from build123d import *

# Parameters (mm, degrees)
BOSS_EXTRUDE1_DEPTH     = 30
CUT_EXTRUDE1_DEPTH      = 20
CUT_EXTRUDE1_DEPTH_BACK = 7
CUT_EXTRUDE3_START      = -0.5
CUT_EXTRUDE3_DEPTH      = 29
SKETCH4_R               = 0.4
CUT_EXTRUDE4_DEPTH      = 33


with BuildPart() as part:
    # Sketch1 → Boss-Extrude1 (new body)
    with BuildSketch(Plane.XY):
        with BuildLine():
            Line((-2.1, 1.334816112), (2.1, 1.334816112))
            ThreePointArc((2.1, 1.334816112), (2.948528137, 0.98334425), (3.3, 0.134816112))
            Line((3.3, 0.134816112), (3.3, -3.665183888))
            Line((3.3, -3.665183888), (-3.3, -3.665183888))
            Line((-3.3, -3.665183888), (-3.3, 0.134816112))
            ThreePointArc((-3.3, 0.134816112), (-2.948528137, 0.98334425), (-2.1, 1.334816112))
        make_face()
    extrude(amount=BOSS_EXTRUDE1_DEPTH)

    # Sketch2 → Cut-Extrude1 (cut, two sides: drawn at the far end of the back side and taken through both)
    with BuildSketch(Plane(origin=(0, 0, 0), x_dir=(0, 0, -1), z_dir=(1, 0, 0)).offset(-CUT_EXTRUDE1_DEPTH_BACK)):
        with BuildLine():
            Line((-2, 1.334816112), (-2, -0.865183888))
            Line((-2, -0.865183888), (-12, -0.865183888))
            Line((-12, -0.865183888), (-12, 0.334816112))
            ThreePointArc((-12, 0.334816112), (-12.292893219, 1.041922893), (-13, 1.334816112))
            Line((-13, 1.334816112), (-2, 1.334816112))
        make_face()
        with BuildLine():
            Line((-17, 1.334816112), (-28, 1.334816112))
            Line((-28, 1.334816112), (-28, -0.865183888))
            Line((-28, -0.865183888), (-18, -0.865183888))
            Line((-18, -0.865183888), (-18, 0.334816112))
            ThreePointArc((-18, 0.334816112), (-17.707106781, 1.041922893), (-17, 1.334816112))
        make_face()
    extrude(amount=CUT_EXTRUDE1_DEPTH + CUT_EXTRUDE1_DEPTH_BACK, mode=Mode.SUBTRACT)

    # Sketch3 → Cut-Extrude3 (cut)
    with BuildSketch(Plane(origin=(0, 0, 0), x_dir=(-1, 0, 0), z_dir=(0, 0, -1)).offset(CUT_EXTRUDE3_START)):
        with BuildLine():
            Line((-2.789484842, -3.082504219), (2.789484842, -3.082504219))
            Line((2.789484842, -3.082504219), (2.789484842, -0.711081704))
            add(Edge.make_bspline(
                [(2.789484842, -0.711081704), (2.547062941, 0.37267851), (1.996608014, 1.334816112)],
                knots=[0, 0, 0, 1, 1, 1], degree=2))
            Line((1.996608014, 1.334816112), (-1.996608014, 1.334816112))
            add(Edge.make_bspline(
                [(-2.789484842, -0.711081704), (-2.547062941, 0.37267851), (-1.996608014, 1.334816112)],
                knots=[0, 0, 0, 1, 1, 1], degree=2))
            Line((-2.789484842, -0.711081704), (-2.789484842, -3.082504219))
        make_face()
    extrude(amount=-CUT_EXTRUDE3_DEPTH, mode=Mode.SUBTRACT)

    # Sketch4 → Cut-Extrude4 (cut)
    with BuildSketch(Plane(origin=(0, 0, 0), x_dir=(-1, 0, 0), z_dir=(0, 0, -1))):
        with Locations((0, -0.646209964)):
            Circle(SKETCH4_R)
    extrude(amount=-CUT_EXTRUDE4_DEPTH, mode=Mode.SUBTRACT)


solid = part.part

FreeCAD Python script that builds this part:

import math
import FreeCAD as App
import Part
import Sketcher
Q = App.Units.Quantity

doc = App.newDocument("Part")
params = doc.addObject("Spreadsheet::Sheet", "Params")
for row, (alias, value) in enumerate([
    ("sketch1_radius", "1.2 mm"),
    ("sketch1_width", "4.2 mm"),
    ("sketch1_height", "3.8 mm"),
    ("pad1_length", "30 mm"),
    ("sketch2_radius", "1 mm"),
    ("sketch2_height", "11 mm"),
    ("sketch2_width", "2.2 mm"),
    ("pocket2_length", "29 mm"),
    ("sketch4_diameter", "0.8 mm"),
    ("pocket3_length", "33 mm"),
], start=1):
    params.set(f"A{row}", alias)
    params.set(f"B{row}", "=" + value)
    params.setAlias(f"B{row}", alias)

body = doc.addObject("PartDesign::Body", "Body")

# Sketch on XY plane
sketch1 = doc.addObject("Sketcher::SketchObject", "Sketch")
body.addObject(sketch1)
sketch1.AttachmentSupport = (doc.XY_Plane, [""])
sketch1.MapMode = "FlatFace"
sketch1.addGeometry([
    Part.LineSegment(App.Vector(2.1, 1.334816, 0), App.Vector(-2.1, 1.334816, 0)),  # 0
    Part.ArcOfCircle(Part.Circle(App.Vector(-2.1, 0.134816, 0), App.Vector(0, 0, 1), 1.2), math.radians(90), math.radians(180)),  # 1
    Part.LineSegment(App.Vector(-3.3, 0.134816, 0), App.Vector(-3.3, -3.665184, 0)),  # 2
    Part.LineSegment(App.Vector(-3.3, -3.665184, 0), App.Vector(3.3, -3.665184, 0)),  # 3
    Part.LineSegment(App.Vector(3.3, -3.665184, 0), App.Vector(3.3, 0.134816, 0)),  # 4
    Part.ArcOfCircle(Part.Circle(App.Vector(2.1, 0.134816, 0), App.Vector(0, 0, 1), 1.2), math.radians(0), math.radians(90)),  # 5
], False)
sketch1.addConstraint([
    Sketcher.Constraint("Tangent", 0, 2, 1, 1),
    Sketcher.Constraint("Tangent", 1, 2, 2, 1),
    Sketcher.Constraint("Coincident", 2, 2, 3, 1),
    Sketcher.Constraint("Coincident", 3, 2, 4, 1),
    Sketcher.Constraint("Tangent", 4, 2, 5, 1),
    Sketcher.Constraint("Tangent", 5, 2, 0, 1),
    Sketcher.Constraint("Horizontal", 0),
    Sketcher.Constraint("Vertical", 2),
    Sketcher.Constraint("Horizontal", 3),
    Sketcher.Constraint("Vertical", 4),
    Sketcher.Constraint("Equal", 1, 5),
    Sketcher.Constraint("Radius", 1, Q("1.2 mm")),
    Sketcher.Constraint("DistanceX", 0, 2, 0, 1, Q("4.2 mm")),
    Sketcher.Constraint("DistanceY", 2, 2, 2, 1, Q("3.8 mm")),
    Sketcher.Constraint("DistanceX", 1, 3, -1, 1, Q("2.1 mm")),
    Sketcher.Constraint("DistanceY", -1, 1, 1, 3, Q("0.134816 mm")),
])
sketch1.setExpression("Constraints[11]", "Params.sketch1_radius")
sketch1.setExpression("Constraints[12]", "Params.sketch1_width")
sketch1.setExpression("Constraints[13]", "Params.sketch1_height")
pad1 = doc.addObject("PartDesign::Pad", "Pad")
body.addObject(pad1)
pad1.Profile = sketch1
pad1.setExpression("Length", "Params.pad1_length")

# Sketch on YZ plane
sketch2 = doc.addObject("Sketcher::SketchObject", "Sketch001")
body.addObject(sketch2)
sketch2.AttachmentSupport = (doc.YZ_Plane, [""])
sketch2.MapMode = "FlatFace"
sketch2.addGeometry([
    Part.LineSegment(App.Vector(-0.865184, 2, 0), App.Vector(1.334816, 2, 0)),  # 0
    Part.LineSegment(App.Vector(1.334816, 2, 0), App.Vector(1.334816, 13, 0)),  # 1
    Part.ArcOfCircle(Part.Circle(App.Vector(0.334816, 13, 0), App.Vector(0, 0, 1), 1), math.radians(-90), math.radians(0)),  # 2
    Part.LineSegment(App.Vector(0.334816, 12, 0), App.Vector(-0.865184, 12, 0)),  # 3
    Part.LineSegment(App.Vector(-0.865184, 12, 0), App.Vector(-0.865184, 2, 0)),  # 4
    Part.LineSegment(App.Vector(1.334816, 17, 0), App.Vector(1.334816, 28, 0)),  # 5
    Part.LineSegment(App.Vector(1.334816, 28, 0), App.Vector(-0.865184, 28, 0)),  # 6
    Part.LineSegment(App.Vector(-0.865184, 28, 0), App.Vector(-0.865184, 18, 0)),  # 7
    Part.LineSegment(App.Vector(-0.865184, 18, 0), App.Vector(0.334816, 18, 0)),  # 8
    Part.ArcOfCircle(Part.Circle(App.Vector(0.334816, 17, 0), App.Vector(0, 0, 1), 1), math.radians(0), math.radians(90)),  # 9
], False)
sketch2.addConstraint([
    Sketcher.Constraint("Coincident", 0, 2, 1, 1),
    Sketcher.Constraint("Tangent", 1, 2, 2, 2),
    Sketcher.Constraint("Tangent", 2, 1, 3, 1),
    Sketcher.Constraint("Coincident", 3, 2, 4, 1),
    Sketcher.Constraint("Coincident", 4, 2, 0, 1),
    Sketcher.Constraint("Coincident", 5, 2, 6, 1),
    Sketcher.Constraint("Coincident", 6, 2, 7, 1),
    Sketcher.Constraint("Coincident", 7, 2, 8, 1),
    Sketcher.Constraint("Tangent", 8, 2, 9, 2),
    Sketcher.Constraint("Tangent", 9, 1, 5, 1),
    Sketcher.Constraint("Horizontal", 0),
    Sketcher.Constraint("Vertical", 1),
    Sketcher.Constraint("Horizontal", 3),
    Sketcher.Constraint("Vertical", 4),
    Sketcher.Constraint("Vertical", 5),
    Sketcher.Constraint("Horizontal", 6),
    Sketcher.Constraint("Vertical", 7),
    Sketcher.Constraint("Horizontal", 8),
    Sketcher.Constraint("Equal", 2, 9),
    Sketcher.Constraint("Vertical", 2, 3, 9, 3),
    Sketcher.Constraint("Vertical", 4, 2, 6, 2),
    Sketcher.Constraint("Equal", 1, 5),
    Sketcher.Constraint("Radius", 2, Q("1 mm")),
    Sketcher.Constraint("DistanceY", 1, 1, 1, 2, Q("11 mm")),
    Sketcher.Constraint("DistanceX", 0, 1, 0, 2, Q("2.2 mm")),
    Sketcher.Constraint("DistanceY", -1, 1, 2, 3, Q("13 mm")),
    Sketcher.Constraint("DistanceY", -1, 1, 9, 3, Q("17 mm")),
    Sketcher.Constraint("DistanceX", -1, 1, 2, 3, Q("0.334816 mm")),
])
sketch2.setExpression("Constraints[22]", "Params.sketch2_radius")
sketch2.setExpression("Constraints[23]", "Params.sketch2_height")
sketch2.setExpression("Constraints[24]", "Params.sketch2_width")
pocket1 = doc.addObject("PartDesign::Pocket", "Pocket")
body.addObject(pocket1)
pocket1.Profile = sketch2
pocket1.Type = "ThroughAll"
pocket1.Midplane = True

# Sketch on XY plane
sketch3 = doc.addObject("Sketcher::SketchObject", "Sketch002")
body.addObject(sketch3)
sketch3.AttachmentSupport = (doc.XY_Plane, [""])
sketch3.MapMode = "FlatFace"
sketch3.AttachmentOffset = App.Placement(App.Vector(0, 0, 0.5), App.Rotation())
sketch3.addGeometry([
    Part.LineSegment(App.Vector(2.789485, -3.082504, 0), App.Vector(-2.789485, -3.082504, 0)),  # 0
    Part.LineSegment(App.Vector(-2.789485, -3.082504, 0), App.Vector(-2.789485, -0.711082, 0)),  # 1
    Part.BSplineCurve([App.Vector(-2.789485, -0.711082, 0), App.Vector(-2.547063, 0.372679, 0), App.Vector(-1.996608, 1.334816, 0)], [3, 3], [0, 1], False, 2, [1, 1, 1], False),  # 2
    Part.LineSegment(App.Vector(-1.996608, 1.334816, 0), App.Vector(1.996608, 1.334816, 0)),  # 3
    Part.BSplineCurve([App.Vector(2.789485, -0.711082, 0), App.Vector(2.547063, 0.372679, 0), App.Vector(1.996608, 1.334816, 0)], [3, 3], [0, 1], False, 2, [1, 1, 1], False),  # 4
    Part.LineSegment(App.Vector(2.789485, -0.711082, 0), App.Vector(2.789485, -3.082504, 0)),  # 5
], False)
sketch3.addConstraint([
    Sketcher.Constraint("Block", 2),
    Sketcher.Constraint("Block", 4),
    Sketcher.Constraint("Coincident", 0, 2, 1, 1),
    Sketcher.Constraint("Coincident", 1, 2, 2, 1),
    Sketcher.Constraint("Coincident", 2, 2, 3, 1),
    Sketcher.Constraint("Coincident", 3, 2, 4, 2),
    Sketcher.Constraint("Coincident", 4, 1, 5, 1),
    Sketcher.Constraint("Coincident", 5, 2, 0, 1),
    Sketcher.Constraint("Horizontal", 0),
    Sketcher.Constraint("Vertical", 1),
    Sketcher.Constraint("Vertical", 5),
    Sketcher.Constraint("DistanceY", 1, 1, 1, 2, Q("2.371423 mm")),
])
pocket2 = doc.addObject("PartDesign::Pocket", "Pocket001")
body.addObject(pocket2)
pocket2.Profile = sketch3
pocket2.setExpression("Length", "Params.pocket2_length")
pocket2.Reversed = True

# Sketch on XY plane
sketch4 = doc.addObject("Sketcher::SketchObject", "Sketch003")
body.addObject(sketch4)
sketch4.AttachmentSupport = (doc.XY_Plane, [""])
sketch4.MapMode = "FlatFace"
sketch4.addGeometry(Part.Circle(App.Vector(0, -0.64621, 0), App.Vector(0, 0, 1), 0.4), False)
sketch4.addConstraint([
    Sketcher.Constraint("PointOnObject", 0, 3, -2),
    Sketcher.Constraint("Diameter", 0, Q("0.8 mm")),
    Sketcher.Constraint("DistanceY", 0, 3, -1, 1, Q("0.64621 mm")),
])
sketch4.setExpression("Constraints[1]", "Params.sketch4_diameter")
pocket3 = doc.addObject("PartDesign::Pocket", "Pocket002")
body.addObject(pocket3)
pocket3.Profile = sketch4
pocket3.setExpression("Length", "Params.pocket3_length")
pocket3.Reversed = True

doc.recompute()
